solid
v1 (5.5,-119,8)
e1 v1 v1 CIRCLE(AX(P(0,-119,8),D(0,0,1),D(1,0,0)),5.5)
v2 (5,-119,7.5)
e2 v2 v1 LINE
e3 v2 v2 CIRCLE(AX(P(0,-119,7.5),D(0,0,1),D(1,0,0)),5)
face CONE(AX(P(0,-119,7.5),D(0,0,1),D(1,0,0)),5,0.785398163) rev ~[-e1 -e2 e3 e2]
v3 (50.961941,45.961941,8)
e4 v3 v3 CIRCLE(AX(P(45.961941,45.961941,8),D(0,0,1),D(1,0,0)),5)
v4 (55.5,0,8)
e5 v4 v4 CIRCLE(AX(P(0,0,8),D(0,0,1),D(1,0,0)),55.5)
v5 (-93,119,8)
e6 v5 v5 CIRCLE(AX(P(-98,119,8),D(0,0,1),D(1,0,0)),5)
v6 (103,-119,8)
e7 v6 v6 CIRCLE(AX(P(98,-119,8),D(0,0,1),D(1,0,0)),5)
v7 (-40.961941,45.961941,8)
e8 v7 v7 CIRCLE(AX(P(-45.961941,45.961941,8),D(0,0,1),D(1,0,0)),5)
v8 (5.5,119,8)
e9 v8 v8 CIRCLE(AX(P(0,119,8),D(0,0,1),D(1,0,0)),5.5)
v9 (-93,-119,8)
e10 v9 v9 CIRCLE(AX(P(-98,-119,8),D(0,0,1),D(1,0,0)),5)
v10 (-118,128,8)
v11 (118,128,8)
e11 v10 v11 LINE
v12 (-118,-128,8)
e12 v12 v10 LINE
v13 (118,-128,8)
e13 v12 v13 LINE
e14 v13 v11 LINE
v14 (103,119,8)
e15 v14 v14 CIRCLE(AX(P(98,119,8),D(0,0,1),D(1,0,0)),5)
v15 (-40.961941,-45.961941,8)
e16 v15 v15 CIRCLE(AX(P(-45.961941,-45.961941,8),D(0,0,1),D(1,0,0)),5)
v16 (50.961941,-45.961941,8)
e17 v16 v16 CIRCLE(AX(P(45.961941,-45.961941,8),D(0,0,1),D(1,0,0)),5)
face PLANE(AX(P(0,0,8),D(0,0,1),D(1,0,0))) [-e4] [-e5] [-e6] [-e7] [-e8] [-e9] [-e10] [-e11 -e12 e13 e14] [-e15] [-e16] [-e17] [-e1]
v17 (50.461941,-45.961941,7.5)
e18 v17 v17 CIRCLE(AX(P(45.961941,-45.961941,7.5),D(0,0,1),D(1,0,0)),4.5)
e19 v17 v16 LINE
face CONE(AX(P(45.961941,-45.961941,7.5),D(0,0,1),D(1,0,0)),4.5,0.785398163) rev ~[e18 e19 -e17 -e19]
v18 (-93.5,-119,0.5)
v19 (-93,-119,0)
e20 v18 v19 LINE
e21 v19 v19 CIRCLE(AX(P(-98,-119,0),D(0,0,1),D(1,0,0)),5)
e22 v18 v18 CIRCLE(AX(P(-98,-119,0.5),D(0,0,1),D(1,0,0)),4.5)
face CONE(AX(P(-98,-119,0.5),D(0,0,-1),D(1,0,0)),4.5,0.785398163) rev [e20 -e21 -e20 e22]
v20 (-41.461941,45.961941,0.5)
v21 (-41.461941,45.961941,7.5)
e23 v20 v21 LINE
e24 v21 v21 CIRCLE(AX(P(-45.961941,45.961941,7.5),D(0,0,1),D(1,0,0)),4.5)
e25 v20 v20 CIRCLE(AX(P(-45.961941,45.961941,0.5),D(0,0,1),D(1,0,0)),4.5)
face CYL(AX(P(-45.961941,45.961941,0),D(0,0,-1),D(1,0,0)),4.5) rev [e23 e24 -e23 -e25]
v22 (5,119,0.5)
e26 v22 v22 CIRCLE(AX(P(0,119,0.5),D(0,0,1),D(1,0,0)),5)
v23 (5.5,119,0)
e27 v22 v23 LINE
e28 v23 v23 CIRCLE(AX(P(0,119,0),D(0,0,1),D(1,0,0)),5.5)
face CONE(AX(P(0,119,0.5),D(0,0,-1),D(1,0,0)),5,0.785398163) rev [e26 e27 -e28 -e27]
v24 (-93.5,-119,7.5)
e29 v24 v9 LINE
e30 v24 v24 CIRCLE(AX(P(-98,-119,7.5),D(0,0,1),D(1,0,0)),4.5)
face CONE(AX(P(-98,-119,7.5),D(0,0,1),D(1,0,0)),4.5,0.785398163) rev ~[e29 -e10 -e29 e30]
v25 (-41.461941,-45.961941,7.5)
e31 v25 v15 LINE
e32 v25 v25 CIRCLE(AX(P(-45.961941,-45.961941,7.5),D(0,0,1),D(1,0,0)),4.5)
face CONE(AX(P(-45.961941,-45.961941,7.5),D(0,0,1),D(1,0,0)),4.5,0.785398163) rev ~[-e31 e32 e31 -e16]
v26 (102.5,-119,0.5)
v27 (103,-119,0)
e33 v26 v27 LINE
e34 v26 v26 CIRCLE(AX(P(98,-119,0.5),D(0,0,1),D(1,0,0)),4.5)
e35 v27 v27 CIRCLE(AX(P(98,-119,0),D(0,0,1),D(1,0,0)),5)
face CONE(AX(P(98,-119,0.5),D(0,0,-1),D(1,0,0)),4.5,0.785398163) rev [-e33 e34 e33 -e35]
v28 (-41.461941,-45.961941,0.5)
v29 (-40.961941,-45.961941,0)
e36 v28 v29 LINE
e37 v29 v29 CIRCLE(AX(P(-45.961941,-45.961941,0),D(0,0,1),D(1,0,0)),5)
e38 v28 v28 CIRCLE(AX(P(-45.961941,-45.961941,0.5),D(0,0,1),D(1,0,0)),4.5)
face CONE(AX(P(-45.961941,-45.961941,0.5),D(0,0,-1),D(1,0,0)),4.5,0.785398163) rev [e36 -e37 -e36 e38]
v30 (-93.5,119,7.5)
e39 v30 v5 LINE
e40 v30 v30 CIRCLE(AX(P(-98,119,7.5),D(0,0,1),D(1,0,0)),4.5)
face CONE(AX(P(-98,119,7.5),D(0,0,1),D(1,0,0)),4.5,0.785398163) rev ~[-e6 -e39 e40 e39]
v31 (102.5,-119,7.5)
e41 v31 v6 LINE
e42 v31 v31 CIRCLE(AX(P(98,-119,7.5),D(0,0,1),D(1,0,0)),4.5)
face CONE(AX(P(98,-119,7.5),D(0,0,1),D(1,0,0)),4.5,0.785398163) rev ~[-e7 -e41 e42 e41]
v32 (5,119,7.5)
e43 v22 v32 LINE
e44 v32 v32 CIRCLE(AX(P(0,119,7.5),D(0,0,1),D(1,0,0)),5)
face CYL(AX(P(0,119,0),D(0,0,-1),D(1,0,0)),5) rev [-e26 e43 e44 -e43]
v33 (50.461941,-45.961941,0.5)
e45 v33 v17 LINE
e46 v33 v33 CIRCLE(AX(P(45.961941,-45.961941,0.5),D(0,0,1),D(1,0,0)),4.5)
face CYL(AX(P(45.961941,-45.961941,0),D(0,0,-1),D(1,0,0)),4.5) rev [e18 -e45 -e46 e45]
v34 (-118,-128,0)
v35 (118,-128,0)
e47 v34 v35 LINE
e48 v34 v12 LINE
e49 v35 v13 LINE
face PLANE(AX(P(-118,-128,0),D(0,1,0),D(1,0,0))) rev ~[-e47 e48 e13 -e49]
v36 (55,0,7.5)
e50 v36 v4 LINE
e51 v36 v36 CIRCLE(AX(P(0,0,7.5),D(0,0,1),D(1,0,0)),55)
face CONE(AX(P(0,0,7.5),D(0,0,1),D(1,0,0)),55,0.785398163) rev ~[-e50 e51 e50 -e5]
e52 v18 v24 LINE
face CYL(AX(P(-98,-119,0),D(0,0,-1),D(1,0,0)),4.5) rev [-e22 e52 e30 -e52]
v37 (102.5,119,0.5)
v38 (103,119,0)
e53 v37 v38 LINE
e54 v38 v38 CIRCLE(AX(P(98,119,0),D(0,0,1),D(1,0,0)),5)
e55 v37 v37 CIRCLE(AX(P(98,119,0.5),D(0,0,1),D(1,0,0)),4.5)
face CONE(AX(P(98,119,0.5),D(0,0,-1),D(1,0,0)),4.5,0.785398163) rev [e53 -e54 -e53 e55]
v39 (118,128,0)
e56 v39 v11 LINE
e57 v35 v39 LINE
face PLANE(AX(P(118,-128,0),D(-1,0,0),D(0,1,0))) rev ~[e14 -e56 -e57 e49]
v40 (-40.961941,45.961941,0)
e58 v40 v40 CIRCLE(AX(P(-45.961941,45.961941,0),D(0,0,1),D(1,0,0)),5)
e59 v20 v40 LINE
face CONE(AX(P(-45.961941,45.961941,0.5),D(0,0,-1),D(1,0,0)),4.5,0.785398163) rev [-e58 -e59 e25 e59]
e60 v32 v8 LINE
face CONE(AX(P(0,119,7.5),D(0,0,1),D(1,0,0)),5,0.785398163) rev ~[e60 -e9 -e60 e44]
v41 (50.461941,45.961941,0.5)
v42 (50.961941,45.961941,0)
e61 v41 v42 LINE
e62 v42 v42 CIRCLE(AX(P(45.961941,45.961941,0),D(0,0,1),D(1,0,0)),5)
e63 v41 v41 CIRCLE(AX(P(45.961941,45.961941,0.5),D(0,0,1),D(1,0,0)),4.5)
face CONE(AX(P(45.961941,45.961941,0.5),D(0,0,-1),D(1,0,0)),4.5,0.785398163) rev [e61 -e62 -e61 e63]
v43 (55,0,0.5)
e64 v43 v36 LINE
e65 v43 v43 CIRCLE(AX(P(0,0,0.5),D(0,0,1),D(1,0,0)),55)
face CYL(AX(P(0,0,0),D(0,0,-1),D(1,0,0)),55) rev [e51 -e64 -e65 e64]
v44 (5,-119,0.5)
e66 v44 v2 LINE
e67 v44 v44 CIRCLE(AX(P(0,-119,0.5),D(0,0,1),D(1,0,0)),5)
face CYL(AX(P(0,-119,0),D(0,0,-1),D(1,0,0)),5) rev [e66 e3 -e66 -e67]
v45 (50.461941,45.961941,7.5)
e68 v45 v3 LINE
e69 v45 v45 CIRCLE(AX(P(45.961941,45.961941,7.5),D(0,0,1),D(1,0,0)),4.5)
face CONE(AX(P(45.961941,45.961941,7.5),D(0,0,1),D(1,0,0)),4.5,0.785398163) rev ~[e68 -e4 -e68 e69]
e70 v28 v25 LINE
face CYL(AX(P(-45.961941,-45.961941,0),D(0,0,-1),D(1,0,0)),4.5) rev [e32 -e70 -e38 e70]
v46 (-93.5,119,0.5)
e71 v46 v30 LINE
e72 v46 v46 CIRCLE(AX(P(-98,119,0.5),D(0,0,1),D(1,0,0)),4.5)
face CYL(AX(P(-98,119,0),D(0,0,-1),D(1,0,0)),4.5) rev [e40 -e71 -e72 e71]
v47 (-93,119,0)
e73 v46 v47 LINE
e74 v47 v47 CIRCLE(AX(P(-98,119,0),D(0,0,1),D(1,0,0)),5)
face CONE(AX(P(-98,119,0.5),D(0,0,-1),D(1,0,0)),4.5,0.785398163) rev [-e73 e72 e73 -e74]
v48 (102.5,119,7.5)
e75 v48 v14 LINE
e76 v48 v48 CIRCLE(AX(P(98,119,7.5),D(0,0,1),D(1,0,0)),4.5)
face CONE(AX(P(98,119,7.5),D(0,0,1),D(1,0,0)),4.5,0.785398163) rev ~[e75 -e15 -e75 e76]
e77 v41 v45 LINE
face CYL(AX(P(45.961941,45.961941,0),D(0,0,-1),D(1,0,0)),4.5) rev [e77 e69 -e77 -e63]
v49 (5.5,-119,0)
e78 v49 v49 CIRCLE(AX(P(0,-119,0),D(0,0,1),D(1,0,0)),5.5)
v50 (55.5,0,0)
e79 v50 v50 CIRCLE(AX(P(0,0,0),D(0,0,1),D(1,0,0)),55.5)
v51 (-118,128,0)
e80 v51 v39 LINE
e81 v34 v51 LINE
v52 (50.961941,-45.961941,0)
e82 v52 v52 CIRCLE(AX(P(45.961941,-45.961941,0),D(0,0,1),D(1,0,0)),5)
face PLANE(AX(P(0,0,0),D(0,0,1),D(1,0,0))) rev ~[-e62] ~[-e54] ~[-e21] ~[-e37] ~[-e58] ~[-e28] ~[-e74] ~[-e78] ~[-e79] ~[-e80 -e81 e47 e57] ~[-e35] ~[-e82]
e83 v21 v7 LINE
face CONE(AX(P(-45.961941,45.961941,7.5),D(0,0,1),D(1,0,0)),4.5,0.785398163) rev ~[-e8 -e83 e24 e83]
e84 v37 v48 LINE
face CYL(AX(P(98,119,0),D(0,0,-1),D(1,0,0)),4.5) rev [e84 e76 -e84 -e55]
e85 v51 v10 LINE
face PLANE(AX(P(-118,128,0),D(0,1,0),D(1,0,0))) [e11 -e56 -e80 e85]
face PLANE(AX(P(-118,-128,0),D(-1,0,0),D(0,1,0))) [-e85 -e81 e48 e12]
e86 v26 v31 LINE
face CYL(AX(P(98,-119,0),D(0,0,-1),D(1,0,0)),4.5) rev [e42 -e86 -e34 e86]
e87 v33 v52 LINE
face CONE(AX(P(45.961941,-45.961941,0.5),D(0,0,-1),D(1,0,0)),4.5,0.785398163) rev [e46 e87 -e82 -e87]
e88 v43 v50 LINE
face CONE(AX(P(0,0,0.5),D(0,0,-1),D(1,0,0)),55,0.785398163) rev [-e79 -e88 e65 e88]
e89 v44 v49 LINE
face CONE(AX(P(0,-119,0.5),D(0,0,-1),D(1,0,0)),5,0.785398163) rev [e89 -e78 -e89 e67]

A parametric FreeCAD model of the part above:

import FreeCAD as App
import Part
import Sketcher

V = App.Vector
Q = App.Units.Quantity


def edges_at(feature, points):
    """Names of the edges that pass closest to the given points."""
    edges = feature.Shape.Edges
    near = lambda p: min(range(len(edges)), key=lambda i: edges[i].distToShape(Part.Vertex(*p))[0])
    return sorted({f"Edge{near(p) + 1}" for p in points})

doc = App.newDocument("Part")
params = doc.addObject("Spreadsheet::Sheet", "Params")
for row, (alias, value) in enumerate([
    ("sketch1_diameter", "9 mm"),
    ("sketch1_diameter2", "10 mm"),
    ("sketch1_diameter3", "110 mm"),
    ("sketch1_width", "236 mm"),
    ("sketch1_height", "256 mm"),
    ("pad1_length", "8 mm"),
    ("chamfer_size", "0.5 mm"),
], start=1):
    params.set(f"A{row}", alias)
    params.set(f"B{row}", "=" + value)
    params.setAlias(f"B{row}", alias)

body = doc.addObject("PartDesign::Body", "Body")

# Sketch on XY plane
sketch1 = body.newObject("Sketcher::SketchObject", "Sketch")
sketch1.AttachmentSupport = (doc.getObject("XY_Plane"), [""])
sketch1.MapMode = "FlatFace"
sketch1.addGeometry(Part.LineSegment(V(-118, 128, 0), V(-118, -128, 0)), False)
sketch1.addGeometry(Part.LineSegment(V(-118, -128, 0), V(118, -128, 0)), False)
sketch1.addGeometry(Part.LineSegment(V(118, -128, 0), V(118, 128, 0)), False)
sketch1.addGeometry(Part.LineSegment(V(118, 128, 0), V(-118, 128, 0)), False)
sketch1.addGeometry(Part.Circle(V(-98, -119, 0), V(0, 0, 1), 4.5), False)
sketch1.addGeometry(Part.Circle(V(-45.961941, -45.961941, 0), V(0, 0, 1), 4.5), False)
sketch1.addGeometry(Part.Circle(V(0, -119, 0), V(0, 0, 1), 5), False)
sketch1.addGeometry(Part.Circle(V(98, -119, 0), V(0, 0, 1), 4.5), False)
sketch1.addGeometry(Part.Circle(V(45.961941, -45.961941, 0), V(0, 0, 1), 4.5), False)
sketch1.addGeometry(Part.Circle(V(-45.961941, 45.961941, 0), V(0, 0, 1), 4.5), False)
sketch1.addGeometry(Part.Circle(V(-98, 119, 0), V(0, 0, 1), 4.5), False)
sketch1.addGeometry(Part.Circle(V(0, 0, 0), V(0, 0, 1), 55), False)
sketch1.addGeometry(Part.Circle(V(45.961941, 45.961941, 0), V(0, 0, 1), 4.5), False)
sketch1.addGeometry(Part.Circle(V(0, 119, 0), V(0, 0, 1), 5), False)
sketch1.addGeometry(Part.Circle(V(98, 119, 0), V(0, 0, 1), 4.5), False)
sketch1.addConstraint(Sketcher.Constraint("Coincident", 0, 2, 1, 1))
sketch1.addConstraint(Sketcher.Constraint("Coincident", 1, 2, 2, 1))
sketch1.addConstraint(Sketcher.Constraint("Coincident", 2, 2, 3, 1))
sketch1.addConstraint(Sketcher.Constraint("Coincident", 3, 2, 0, 1))
sketch1.addConstraint(Sketcher.Constraint("Vertical", 0))
sketch1.addConstraint(Sketcher.Constraint("Horizontal", 1))
sketch1.addConstraint(Sketcher.Constraint("Vertical", 2))
sketch1.addConstraint(Sketcher.Constraint("Horizontal", 3))
sketch1.addConstraint(Sketcher.Constraint("Coincident", 11, 3, -1, 1))
sketch1.addConstraint(Sketcher.Constraint("Equal", 4, 5))
sketch1.addConstraint(Sketcher.Constraint("Equal", 5, 7))
sketch1.addConstraint(Sketcher.Constraint("Equal", 7, 8))
sketch1.addConstraint(Sketcher.Constraint("Equal", 8, 9))
sketch1.addConstraint(Sketcher.Constraint("Equal", 9, 10))
sketch1.addConstraint(Sketcher.Constraint("Equal", 10, 12))
sketch1.addConstraint(Sketcher.Constraint("Equal", 6, 13))
sketch1.addConstraint(Sketcher.Constraint("Equal", 12, 14))
sketch1.addConstraint(Sketcher.Constraint("Symmetric", 8, 3, 9, 3, -1, 1))
sketch1.addConstraint(Sketcher.Constraint("Symmetric", 7, 3, 10, 3, -1, 1))
sketch1.addConstraint(Sketcher.Constraint("Symmetric", 5, 3, 12, 3, -1, 1))
sketch1.addConstraint(Sketcher.Constraint("Symmetric", 6, 3, 13, 3, -1, 1))
sketch1.addConstraint(Sketcher.Constraint("Symmetric", 4, 3, 14, 3, -1, 1))
sketch1.addConstraint(Sketcher.Constraint("Symmetric", 0, 2, 2, 2, -1, 1))
sketch1.addConstraint(Sketcher.Constraint("Symmetric", 4, 3, 7, 3, -2))
sketch1.addConstraint(Sketcher.Constraint("Symmetric", 5, 3, 8, 3, -2))
sketch1.addConstraint(Sketcher.Constraint("PointOnObject", 6, 3, -2))
sketch1.addConstraint(Sketcher.Constraint("Horizontal", 4, 3, 6, 3))
sketch1.addConstraint(Sketcher.Constraint("Diameter", 4, Q("9 mm")))
sketch1.addConstraint(Sketcher.Constraint("Diameter", 6, Q("10 mm")))
sketch1.addConstraint(Sketcher.Constraint("Diameter", 11, Q("110 mm")))
sketch1.addConstraint(Sketcher.Constraint("DistanceX", 1, 1, 1, 2, Q("236 mm")))
sketch1.addConstraint(Sketcher.Constraint("DistanceY", 0, 2, 0, 1, Q("256 mm")))
sketch1.addConstraint(Sketcher.Constraint("DistanceX", 4, 3, -1, 1, Q("98 mm")))
sketch1.addConstraint(Sketcher.Constraint("DistanceY", 4, 3, -1, 1, Q("119 mm")))
sketch1.addConstraint(Sketcher.Constraint("DistanceX", 5, 3, -1, 1, Q("45.961941 mm")))
sketch1.addConstraint(Sketcher.Constraint("DistanceY", 5, 3, -1, 1, Q("45.961941 mm")))
sketch1.setExpression("Constraints[27]", "Params.sketch1_diameter")
sketch1.setExpression("Constraints[28]", "Params.sketch1_diameter2")
sketch1.setExpression("Constraints[29]", "Params.sketch1_diameter3")
sketch1.setExpression("Constraints[30]", "Params.sketch1_width")
sketch1.setExpression("Constraints[31]", "Params.sketch1_height")
pad1 = body.newObject("PartDesign::Pad", "Pad")
pad1.Profile = sketch1
pad1.setExpression("Length", "Params.pad1_length")
doc.recompute()

chamfer = body.newObject("PartDesign::Chamfer", "Chamfer")
chamfer.Base = (pad1, edges_at(pad1, [
    (-93.5, -119, 4),
    (-102.5, -119, 0),
    (-102.5, -119, 8),
    (-41.462, -45.962, 4),
    (-50.462, -45.962, 0),
    (-50.462, -45.962, 8),
    (55, 0, 4),
    (-55, 0, 0),
    (-55, 0, 8),
    (-41.462, 45.962, 4),
    (-50.462, 45.962, 0),
    (-50.462, 45.962, 8),
    (50.462, -45.962, 4),
    (41.462, -45.962, 0),
    (41.462, -45.962, 8),
    (102.5, -119, 4),
    (93.5, -119, 0),
    (93.5, -119, 8),
    (-93.5, 119, 4),
    (-102.5, 119, 0),
    (-102.5, 119, 8),
    (50.462, 45.962, 4),
    (41.462, 45.962, 0),
    (41.462, 45.962, 8),
    (102.5, 119, 4),
    (93.5, 119, 0),
    (93.5, 119, 8),
    (5, 119, 4),
    (-5, 119, 0),
    (-5, 119, 8),
    (5, -119, 4),
    (-5, -119, 0),
    (-5, -119, 8),
]))
chamfer.setExpression("Size", "Params.chamfer_size")

doc.recompute()
